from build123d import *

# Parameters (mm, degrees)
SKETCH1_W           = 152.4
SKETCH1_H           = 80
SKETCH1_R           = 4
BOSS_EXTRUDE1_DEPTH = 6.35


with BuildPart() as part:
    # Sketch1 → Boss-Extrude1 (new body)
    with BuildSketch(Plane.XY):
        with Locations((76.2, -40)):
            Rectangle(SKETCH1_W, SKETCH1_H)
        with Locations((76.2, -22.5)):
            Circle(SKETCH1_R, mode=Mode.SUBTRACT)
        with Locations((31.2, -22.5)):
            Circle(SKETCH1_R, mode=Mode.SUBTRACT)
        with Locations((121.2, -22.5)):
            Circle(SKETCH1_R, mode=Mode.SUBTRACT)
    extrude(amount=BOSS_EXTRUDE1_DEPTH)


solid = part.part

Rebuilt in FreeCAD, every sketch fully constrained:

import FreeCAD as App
import Part
import Sketcher
from FreeCAD import Vector


def add_polygon(sketch, points):
    """Adds a closed chain of lines whose ends are joined by coincident constraints."""
    first, n = sketch.GeometryCount, len(points)
    for a, b in zip(points, points[1:] + points[:1]):
        sketch.addGeometry(Part.LineSegment(App.Vector(*a, 0), App.Vector(*b, 0)), False)
    for i in range(n):
        sketch.addConstraint(Sketcher.Constraint("Coincident", first + i, 2, first + (i + 1) % n, 1))

doc = App.newDocument("Part")
body = doc.addObject("PartDesign::Body", "Body")

# Sketch on XY plane
sketch1 = body.newObject("Sketcher::SketchObject", "Sketch")
sketch1.AttachmentSupport = (doc.getObject("XY_Plane"), [""])
sketch1.MapMode = "FlatFace"
add_polygon(sketch1, [(0, 0), (0, -80), (152.4, -80), (152.4, 0)])  # lines 0-3
sketch1.addGeometry(Part.Circle(Vector(31.2, -22.5, 0), Vector(0, 0, 1), 4), False)  # 4
sketch1.addGeometry(Part.Circle(Vector(76.2, -22.5, 0), Vector(0, 0, 1), 4), False)  # 5
sketch1.addGeometry(Part.Circle(Vector(121.2, -22.5, 0), Vector(0, 0, 1), 4), False)  # 6
sketch1.addConstraint(Sketcher.Constraint("Vertical", 0))
sketch1.addConstraint(Sketcher.Constraint("Horizontal", 1))
sketch1.addConstraint(Sketcher.Constraint("Vertical", 2))
sketch1.addConstraint(Sketcher.Constraint("Horizontal", 3))
sketch1.addConstraint(Sketcher.Constraint("Coincident", 3, 2, -1, 1))
sketch1.addConstraint(Sketcher.Constraint("Equal", 4, 5))
sketch1.addConstraint(Sketcher.Constraint("Equal", 5, 6))
sketch1.addConstraint(Sketcher.Constraint("Horizontal", 4, 3, 5, 3))
sketch1.addConstraint(Sketcher.Constraint("Horizontal", 5, 3, 6, 3))
sketch1.addConstraint(Sketcher.Constraint("Diameter", 4, 8.0))
sketch1.addConstraint(Sketcher.Constraint("DistanceY", 0, 2, 0, 1, 80.0))
sketch1.addConstraint(Sketcher.Constraint("DistanceX", 1, 1, 1, 2, 152.4))
sketch1.addConstraint(Sketcher.Constraint("DistanceX", 4, 3, 5, 3, 45.0))
sketch1.addConstraint(Sketcher.Constraint("DistanceX", 5, 3, 6, 3, 45.0))
sketch1.addConstraint(Sketcher.Constraint("DistanceX", -1, 1, 4, 3, 31.2))
sketch1.addConstraint(Sketcher.Constraint("DistanceY", 4, 3, -1, 1, 22.5))
pad1 = body.newObject("PartDesign::Pad", "Pad")
pad1.Profile = sketch1
pad1.Length = 6.35

doc.recompute()
